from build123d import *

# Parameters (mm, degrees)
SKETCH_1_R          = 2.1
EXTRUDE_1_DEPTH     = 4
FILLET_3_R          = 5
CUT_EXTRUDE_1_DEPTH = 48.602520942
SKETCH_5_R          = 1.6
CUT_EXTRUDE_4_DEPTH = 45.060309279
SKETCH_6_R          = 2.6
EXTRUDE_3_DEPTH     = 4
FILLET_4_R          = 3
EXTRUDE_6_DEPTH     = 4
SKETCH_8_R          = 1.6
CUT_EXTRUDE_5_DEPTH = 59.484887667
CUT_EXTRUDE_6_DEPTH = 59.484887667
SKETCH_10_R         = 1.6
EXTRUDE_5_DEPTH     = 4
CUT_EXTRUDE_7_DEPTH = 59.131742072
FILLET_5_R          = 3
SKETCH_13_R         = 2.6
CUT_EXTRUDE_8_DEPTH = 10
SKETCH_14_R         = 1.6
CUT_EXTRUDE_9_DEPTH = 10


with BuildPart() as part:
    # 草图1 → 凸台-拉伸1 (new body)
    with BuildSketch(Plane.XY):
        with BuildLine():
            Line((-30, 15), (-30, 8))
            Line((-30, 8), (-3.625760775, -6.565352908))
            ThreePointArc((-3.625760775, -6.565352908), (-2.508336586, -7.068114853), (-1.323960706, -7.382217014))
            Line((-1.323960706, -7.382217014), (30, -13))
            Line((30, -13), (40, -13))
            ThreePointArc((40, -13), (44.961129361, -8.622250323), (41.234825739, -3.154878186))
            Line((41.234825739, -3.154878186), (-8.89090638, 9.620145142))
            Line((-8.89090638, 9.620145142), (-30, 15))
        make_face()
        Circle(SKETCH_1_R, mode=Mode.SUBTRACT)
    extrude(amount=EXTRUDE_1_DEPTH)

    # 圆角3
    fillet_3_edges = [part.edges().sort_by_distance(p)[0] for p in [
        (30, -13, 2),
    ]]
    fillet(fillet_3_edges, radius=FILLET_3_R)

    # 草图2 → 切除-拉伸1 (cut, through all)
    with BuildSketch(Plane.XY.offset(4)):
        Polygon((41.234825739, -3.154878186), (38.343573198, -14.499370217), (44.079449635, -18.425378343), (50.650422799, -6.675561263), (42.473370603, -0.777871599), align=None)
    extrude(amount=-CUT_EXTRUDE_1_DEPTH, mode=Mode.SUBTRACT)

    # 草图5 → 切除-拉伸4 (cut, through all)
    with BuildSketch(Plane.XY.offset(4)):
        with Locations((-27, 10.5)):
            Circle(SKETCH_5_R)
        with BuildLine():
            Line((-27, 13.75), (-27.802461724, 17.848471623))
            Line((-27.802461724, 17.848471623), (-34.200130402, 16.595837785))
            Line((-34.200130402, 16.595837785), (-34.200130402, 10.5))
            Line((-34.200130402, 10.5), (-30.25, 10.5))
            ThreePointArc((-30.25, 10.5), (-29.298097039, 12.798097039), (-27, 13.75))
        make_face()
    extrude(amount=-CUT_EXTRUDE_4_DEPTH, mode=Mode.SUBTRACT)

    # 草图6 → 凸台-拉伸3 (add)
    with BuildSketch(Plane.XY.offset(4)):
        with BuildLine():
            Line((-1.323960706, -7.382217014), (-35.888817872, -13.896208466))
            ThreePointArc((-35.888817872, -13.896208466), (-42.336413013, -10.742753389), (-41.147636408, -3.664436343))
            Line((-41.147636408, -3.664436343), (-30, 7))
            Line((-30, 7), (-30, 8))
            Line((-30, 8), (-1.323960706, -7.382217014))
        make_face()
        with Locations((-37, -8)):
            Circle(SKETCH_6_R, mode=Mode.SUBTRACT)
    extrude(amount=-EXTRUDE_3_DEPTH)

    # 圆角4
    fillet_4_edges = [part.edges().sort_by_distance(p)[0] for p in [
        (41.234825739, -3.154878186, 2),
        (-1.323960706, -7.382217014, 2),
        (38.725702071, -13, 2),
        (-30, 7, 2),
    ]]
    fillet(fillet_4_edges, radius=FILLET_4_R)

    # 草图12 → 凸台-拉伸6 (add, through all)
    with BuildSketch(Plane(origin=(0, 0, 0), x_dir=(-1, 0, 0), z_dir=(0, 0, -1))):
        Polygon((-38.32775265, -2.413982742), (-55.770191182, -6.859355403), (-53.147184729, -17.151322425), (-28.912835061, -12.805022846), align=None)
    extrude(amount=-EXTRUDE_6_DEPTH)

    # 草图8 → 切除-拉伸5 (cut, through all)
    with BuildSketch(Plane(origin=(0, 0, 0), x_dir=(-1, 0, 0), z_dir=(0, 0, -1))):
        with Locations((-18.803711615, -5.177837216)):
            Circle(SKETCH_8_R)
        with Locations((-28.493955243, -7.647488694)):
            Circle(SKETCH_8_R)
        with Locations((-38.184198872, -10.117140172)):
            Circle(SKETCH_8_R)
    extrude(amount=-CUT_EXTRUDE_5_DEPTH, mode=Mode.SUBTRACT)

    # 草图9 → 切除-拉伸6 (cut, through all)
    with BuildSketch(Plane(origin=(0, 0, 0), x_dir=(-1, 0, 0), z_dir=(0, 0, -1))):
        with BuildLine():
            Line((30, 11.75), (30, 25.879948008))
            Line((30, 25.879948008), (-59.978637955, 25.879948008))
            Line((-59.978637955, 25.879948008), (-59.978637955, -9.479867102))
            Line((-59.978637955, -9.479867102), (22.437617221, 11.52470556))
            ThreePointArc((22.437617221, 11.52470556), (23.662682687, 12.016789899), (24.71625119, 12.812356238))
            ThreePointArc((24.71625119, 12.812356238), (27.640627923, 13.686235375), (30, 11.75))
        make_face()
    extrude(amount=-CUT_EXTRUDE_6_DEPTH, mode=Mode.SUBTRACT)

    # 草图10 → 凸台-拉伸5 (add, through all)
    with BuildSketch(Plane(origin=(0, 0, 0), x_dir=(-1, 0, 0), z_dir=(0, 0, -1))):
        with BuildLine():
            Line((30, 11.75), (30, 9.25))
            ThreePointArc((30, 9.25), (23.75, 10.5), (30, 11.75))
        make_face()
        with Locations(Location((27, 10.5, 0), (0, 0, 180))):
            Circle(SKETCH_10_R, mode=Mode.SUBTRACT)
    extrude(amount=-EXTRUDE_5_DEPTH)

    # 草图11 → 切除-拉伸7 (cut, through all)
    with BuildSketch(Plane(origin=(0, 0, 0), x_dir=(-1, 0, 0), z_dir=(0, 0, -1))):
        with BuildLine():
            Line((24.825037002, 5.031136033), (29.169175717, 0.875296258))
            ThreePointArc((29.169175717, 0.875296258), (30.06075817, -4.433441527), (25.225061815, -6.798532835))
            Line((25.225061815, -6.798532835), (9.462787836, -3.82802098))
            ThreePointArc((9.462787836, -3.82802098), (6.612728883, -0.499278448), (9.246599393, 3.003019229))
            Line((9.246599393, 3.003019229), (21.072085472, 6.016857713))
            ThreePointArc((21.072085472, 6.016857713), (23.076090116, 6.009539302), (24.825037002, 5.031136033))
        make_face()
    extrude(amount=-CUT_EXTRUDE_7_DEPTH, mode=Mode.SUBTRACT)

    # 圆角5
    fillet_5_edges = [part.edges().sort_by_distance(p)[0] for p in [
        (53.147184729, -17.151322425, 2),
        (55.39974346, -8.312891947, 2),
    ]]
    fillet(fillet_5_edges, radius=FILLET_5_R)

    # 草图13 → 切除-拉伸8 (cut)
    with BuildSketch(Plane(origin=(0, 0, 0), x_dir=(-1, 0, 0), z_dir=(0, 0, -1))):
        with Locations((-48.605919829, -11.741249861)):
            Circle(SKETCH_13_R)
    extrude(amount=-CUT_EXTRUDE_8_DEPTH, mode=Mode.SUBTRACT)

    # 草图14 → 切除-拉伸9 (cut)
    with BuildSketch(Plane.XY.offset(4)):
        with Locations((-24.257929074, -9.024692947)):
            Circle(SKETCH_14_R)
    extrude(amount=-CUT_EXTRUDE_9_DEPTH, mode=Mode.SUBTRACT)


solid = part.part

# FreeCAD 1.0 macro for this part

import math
import FreeCAD as App
import Part
import Sketcher
Q = App.Units.Quantity


def edges_at(feature, points):
    """Names of the edges that pass closest to the given points."""
    edges = feature.Shape.Edges
    near = lambda p: min(range(len(edges)), key=lambda i: edges[i].distToShape(Part.Vertex(*p))[0])
    return sorted({f"Edge{near(p) + 1}" for p in points})

doc = App.newDocument("Part")
params = doc.addObject("Spreadsheet::Sheet", "Params")
for row, (alias, value) in enumerate([
    ("sketch1_radius", "5 mm"),
    ("sketch1_diameter", "4.2 mm"),
    ("sketch1_radius2", "7.5 mm"),
    ("sketch1_width", "10 mm"),
    ("sketch1_height", "7 mm"),
    ("pad1_length", "4 mm"),
    ("fillet_radius", "5 mm"),
    ("sketch3_diameter", "3.2 mm"),
    ("sketch3_radius", "3.25 mm"),
    ("sketch4_radius", "6 mm"),
    ("sketch4_diameter", "5.2 mm"),
    ("sketch4_height", "1 mm"),
    ("pad2_length", "4 mm"),
    ("fillet2_radius", "3 mm"),
    ("sketch5_length", "18 mm"),
    ("pad3_length", "4 mm"),
    ("sketch6_diameter", "3.2 mm"),
    ("sketch7_radius", "5 mm"),
    ("sketch7_radius2", "3.25 mm"),
    ("sketch8_diameter", "3.2 mm"),
    ("sketch8_radius", "3.25 mm"),
    ("sketch8_height", "2.5 mm"),
    ("pad4_length", "4 mm"),
    ("sketch9_radius", "4 mm"),
    ("sketch9_radius2", "3.5 mm"),
    ("sketch9_radius3", "4.5 mm"),
    ("fillet3_radius", "3 mm"),
    ("sketch10_diameter", "5.2 mm"),
    ("pocket6_length", "10 mm"),
    ("sketch11_diameter", "3.2 mm"),
    ("pocket7_length", "10 mm"),
], start=1):
    params.set(f"A{row}", alias)
    params.set(f"B{row}", "=" + value)
    params.setAlias(f"B{row}", alias)

body = doc.addObject("PartDesign::Body", "Body")

sketch1 = doc.addObject("Sketcher::SketchObject", "Sketch")
body.addObject(sketch1)
sketch1.AttachmentSupport = (doc.XY_Plane, [""])
sketch1.MapMode = "FlatFace"
sketch1.addGeometry([
    Part.LineSegment(App.Vector(-30, 15, 0), App.Vector(-30, 8, 0)),
    Part.LineSegment(App.Vector(-30, 8, 0), App.Vector(-3.625761, -6.565353, 0)),
    Part.ArcOfCircle(Part.Circle(App.Vector(0, 0, 0), App.Vector(0, 0, 1), 7.5), math.radians(-118.909974), math.radians(-100.167596)),
    Part.LineSegment(App.Vector(-1.323961, -7.382217, 0), App.Vector(30, -13, 0)),
    Part.LineSegment(App.Vector(30, -13, 0), App.Vector(40, -13, 0)),
    Part.ArcOfCircle(Part.Circle(App.Vector(40, -8, 0), App.Vector(0, 0, 1), 5), math.radians(-90), math.radians(75.702002)),
    Part.LineSegment(App.Vector(41.234826, -3.154878, 0), App.Vector(-8.890906, 9.620145, 0)),
    Part.LineSegment(App.Vector(-8.890906, 9.620145, 0), App.Vector(-30, 15, 0)),
    Part.Circle(App.Vector(0, 0, 0), App.Vector(0, 0, 1), 2.1),
], False)
sketch1.addConstraint([
    Sketcher.Constraint("Coincident", 0, 2, 1, 1),
    Sketcher.Constraint("Tangent", 1, 2, 2, 1),
    Sketcher.Constraint("Tangent", 2, 2, 3, 1),
    Sketcher.Constraint("Coincident", 3, 2, 4, 1),
    Sketcher.Constraint("Tangent", 4, 2, 5, 1),
    Sketcher.Constraint("Tangent", 5, 2, 6, 1),
    Sketcher.Constraint("Coincident", 6, 2, 7, 1),
    Sketcher.Constraint("Coincident", 7, 2, 0, 1),
    Sketcher.Constraint("Vertical", 0),
    Sketcher.Constraint("Horizontal", 4),
    Sketcher.Constraint("Coincident", 2, 3, -1, 1),
    Sketcher.Constraint("Coincident", 8, 3, -1, 1),
    Sketcher.Constraint("Parallel", 6, 7),
    Sketcher.Constraint("Radius", 5, Q("5 mm")),
    Sketcher.Constraint("Diameter", 8, Q("4.2 mm")),
    Sketcher.Constraint("Radius", 2, Q("7.5 mm")),
    Sketcher.Constraint("DistanceX", 4, 1, 4, 2, Q("10 mm")),
    Sketcher.Constraint("DistanceY", 0, 2, 0, 1, Q("7 mm")),
    Sketcher.Constraint("DistanceX", -1, 1, 5, 3, Q("40 mm")),
    Sketcher.Constraint("DistanceY", 5, 3, -1, 1, Q("8 mm")),
    Sketcher.Constraint("DistanceX", 0, 2, -1, 1, Q("30 mm")),
    Sketcher.Constraint("DistanceY", -1, 1, 0, 2, Q("8 mm")),
    Sketcher.Constraint("DistanceY", 1, 2, 6, 2, Q("16.185498 mm")),
])
sketch1.setExpression("Constraints[13]", "Params.sketch1_radius")
sketch1.setExpression("Constraints[14]", "Params.sketch1_diameter")
sketch1.setExpression("Constraints[15]", "Params.sketch1_radius2")
sketch1.setExpression("Constraints[16]", "Params.sketch1_width")
sketch1.setExpression("Constraints[17]", "Params.sketch1_height")
pad1 = doc.addObject("PartDesign::Pad", "Pad")
body.addObject(pad1)
pad1.Profile = sketch1
pad1.setExpression("Length", "Params.pad1_length")
doc.recompute()

fillet = doc.addObject("PartDesign::Fillet", "Fillet")
body.addObject(fillet)
fillet.Base = (pad1, edges_at(pad1, [(30, -13, 2)]))
fillet.setExpression("Radius", "Params.fillet_radius")

sketch2 = doc.addObject("Sketcher::SketchObject", "Sketch001")
body.addObject(sketch2)
sketch2.AttachmentSupport = (doc.XY_Plane, [""])
sketch2.MapMode = "FlatFace"
sketch2.AttachmentOffset = App.Placement(App.Vector(0, 0, 4), App.Rotation())
sketch2.addGeometry([
    Part.LineSegment(App.Vector(41.234826, -3.154878, 0), App.Vector(38.343573, -14.49937, 0)),
    Part.LineSegment(App.Vector(38.343573, -14.49937, 0), App.Vector(44.07945, -18.425378, 0)),
    Part.LineSegment(App.Vector(44.07945, -18.425378, 0), App.Vector(50.650423, -6.675561, 0)),
    Part.LineSegment(App.Vector(50.650423, -6.675561, 0), App.Vector(42.473371, -0.777872, 0)),
    Part.LineSegment(App.Vector(42.473371, -0.777872, 0), App.Vector(41.234826, -3.154878, 0)),
], False)
sketch2.addConstraint([
    Sketcher.Constraint("Coincident", 0, 2, 1, 1),
    Sketcher.Constraint("Coincident", 1, 2, 2, 1),
    Sketcher.Constraint("Coincident", 2, 2, 3, 1),
    Sketcher.Constraint("Coincident", 3, 2, 4, 1),
    Sketcher.Constraint("Coincident", 4, 2, 0, 1),
    Sketcher.Constraint("DistanceY", 0, 2, 3, 2, Q("13.721499 mm")),
    Sketcher.Constraint("DistanceY", 1, 2, 4, 2, Q("15.2705 mm")),
    Sketcher.Constraint("Distance", 3, Q("10.08201 mm")),
    Sketcher.Constraint("DistanceY", 0, 2, -1, 1, Q("14.49937 mm")),
    Sketcher.Constraint("DistanceX", -1, 1, 1, 2, Q("44.07945 mm")),
    Sketcher.Constraint("DistanceY", 1, 2, -1, 1, Q("18.425378 mm")),
    Sketcher.Constraint("DistanceY", 2, 2, -1, 1, Q("6.675561 mm")),
    Sketcher.Constraint("DistanceX", -1, 1, 3, 2, Q("42.473371 mm")),
    Sketcher.Constraint("DistanceX", 0, 2, 2, 2, Q("12.30685 mm")),
    Sketcher.Constraint("Distance", 0, Q("11.707128 mm")),
])
pocket1 = doc.addObject("PartDesign::Pocket", "Pocket")
body.addObject(pocket1)
pocket1.Profile = sketch2
pocket1.Type = "ThroughAll"

sketch3 = doc.addObject("Sketcher::SketchObject", "Sketch002")
body.addObject(sketch3)
sketch3.AttachmentSupport = (doc.XY_Plane, [""])
sketch3.MapMode = "FlatFace"
sketch3.AttachmentOffset = App.Placement(App.Vector(0, 0, 4), App.Rotation())
sketch3.addGeometry([
    Part.Circle(App.Vector(-27, 10.5, 0), App.Vector(0, 0, 1), 1.6),
    Part.LineSegment(App.Vector(-27, 13.75, 0), App.Vector(-27.802462, 17.848472, 0)),
    Part.LineSegment(App.Vector(-27.802462, 17.848472, 0), App.Vector(-34.20013, 16.595838, 0)),
    Part.LineSegment(App.Vector(-34.20013, 16.595838, 0), App.Vector(-34.20013, 10.5, 0)),
    Part.LineSegment(App.Vector(-34.20013, 10.5, 0), App.Vector(-30.25, 10.5, 0)),
    Part.ArcOfCircle(Part.Circle(App.Vector(-27, 10.5, 0), App.Vector(0, 0, 1), 3.25), math.radians(90), math.radians(180)),
], False)
sketch3.addConstraint([
    Sketcher.Constraint("Coincident", 1, 2, 2, 1),
    Sketcher.Constraint("Coincident", 2, 2, 3, 1),
    Sketcher.Constraint("Coincident", 3, 2, 4, 1),
    Sketcher.Constraint("Coincident", 4, 2, 5, 2),
    Sketcher.Constraint("Coincident", 5, 1, 1, 1),
    Sketcher.Constraint("Vertical", 3),
    Sketcher.Constraint("Horizontal", 4),
    Sketcher.Constraint("Coincident", 5, 3, 0, 3),
    Sketcher.Constraint("Perpendicular", 1, 2),
    Sketcher.Constraint("Horizontal", 5, 3, 3, 2),
    Sketcher.Constraint("Vertical", 0, 3, 5, 1),
    Sketcher.Constraint("Diameter", 0, Q("3.2 mm")),
    Sketcher.Constraint("Radius", 5, Q("3.25 mm")),
    Sketcher.Constraint("DistanceX", 0, 3, -1, 1, Q("27 mm")),
    Sketcher.Constraint("DistanceY", -1, 1, 0, 3, Q("10.5 mm")),
    Sketcher.Constraint("DistanceX", 4, 1, 4, 2, Q("3.95013 mm")),
    Sketcher.Constraint("Distance", 1, Q("4.176292 mm")),
    Sketcher.Constraint("DistanceY", 3, 2, 3, 1, Q("6.095838 mm")),
])
sketch3.setExpression("Constraints[11]", "Params.sketch3_diameter")
sketch3.setExpression("Constraints[12]", "Params.sketch3_radius")
pocket2 = doc.addObject("PartDesign::Pocket", "Pocket001")
body.addObject(pocket2)
pocket2.Profile = sketch3
pocket2.Type = "ThroughAll"

sketch4 = doc.addObject("Sketcher::SketchObject", "Sketch003")
body.addObject(sketch4)
sketch4.AttachmentSupport = (doc.XY_Plane, [""])
sketch4.MapMode = "FlatFace"
sketch4.AttachmentOffset = App.Placement(App.Vector(0, 0, 4), App.Rotation())
sketch4.addGeometry([
    Part.LineSegment(App.Vector(-35.888818, -13.896208, 0), App.Vector(-1.323961, -7.382217, 0)),
    Part.LineSegment(App.Vector(-1.323961, -7.382217, 0), App.Vector(-30, 8, 0)),
    Part.LineSegment(App.Vector(-30, 8, 0), App.Vector(-30, 7, 0)),
    Part.LineSegment(App.Vector(-30, 7, 0), App.Vector(-41.147636, -3.664436, 0)),
    Part.ArcOfCircle(Part.Circle(App.Vector(-37, -8, 0), App.Vector(0, 0, 1), 6), math.radians(133.730941), math.radians(280.672619)),
    Part.Circle(App.Vector(-37, -8, 0), App.Vector(0, 0, 1), 2.6),
], False)
sketch4.addConstraint([
    Sketcher.Constraint("Coincident", 0, 2, 1, 1),
    Sketcher.Constraint("Coincident", 1, 2, 2, 1),
    Sketcher.Constraint("Coincident", 2, 2, 3, 1),
    Sketcher.Constraint("Tangent", 3, 2, 4, 1),
    Sketcher.Constraint("Tangent", 4, 2, 0, 1),
    Sketcher.Constraint("Vertical", 2),
    Sketcher.Constraint("Coincident", 5, 3, 4, 3),
    Sketcher.Constraint("Radius", 4, Q("6 mm")),
    Sketcher.Constraint("Diameter", 5, Q("5.2 mm")),
    Sketcher.Constraint("DistanceY", 2, 2, 2, 1, Q("1 mm")),
    Sketcher.Constraint("DistanceX", 4, 3, -1, 1, Q("37 mm")),
    Sketcher.Constraint("DistanceY", 4, 3, -1, 1, Q("8 mm")),
    Sketcher.Constraint("DistanceX", 1, 2, -1, 1, Q("30 mm")),
    Sketcher.Constraint("DistanceY", -1, 1, 1, 2, Q("8 mm")),
    Sketcher.Constraint("Distance", 1, Q("32.541171 mm")),
    Sketcher.Constraint("DistanceX", 0, 2, -1, 1, Q("1.323961 mm")),
])
sketch4.setExpression("Constraints[7]", "Params.sketch4_radius")
sketch4.setExpression("Constraints[8]", "Params.sketch4_diameter")
sketch4.setExpression("Constraints[9]", "Params.sketch4_height")
pad2 = doc.addObject("PartDesign::Pad", "Pad001")
body.addObject(pad2)
pad2.Profile = sketch4
pad2.setExpression("Length", "Params.pad2_length")
pad2.Reversed = True
doc.recompute()

fillet2 = doc.addObject("PartDesign::Fillet", "Fillet001")
body.addObject(fillet2)
fillet2.Base = (pad2, edges_at(pad2, [
    (41.235, -3.155, 2),
    (-1.324, -7.382, 2),
    (38.726, -13, 2),
    (-30, 7, 2),
]))
fillet2.setExpression("Radius", "Params.fillet2_radius")

sketch5 = doc.addObject("Sketcher::SketchObject", "Sketch004")
body.addObject(sketch5)
sketch5.AttachmentSupport = (doc.XY_Plane, [""])
sketch5.MapMode = "FlatFace"
sketch5.addGeometry([
    Part.LineSegment(App.Vector(38.327753, -2.413983, 0), App.Vector(55.770191, -6.859355, 0)),
    Part.LineSegment(App.Vector(55.770191, -6.859355, 0), App.Vector(53.147185, -17.151322, 0)),
    Part.LineSegment(App.Vector(53.147185, -17.151322, 0), App.Vector(28.912835, -12.805023, 0)),
    Part.LineSegment(App.Vector(28.912835, -12.805023, 0), App.Vector(38.327753, -2.413983, 0)),
], False)
sketch5.addConstraint([
    Sketcher.Constraint("Coincident", 0, 2, 1, 1),
    Sketcher.Constraint("Coincident", 1, 2, 2, 1),
    Sketcher.Constraint("Coincident", 2, 2, 3, 1),
    Sketcher.Constraint("Coincident", 3, 2, 0, 1),
    Sketcher.Constraint("Perpendicular", 0, 1),
    Sketcher.Constraint("Distance", 0, Q("18 mm")),
    Sketcher.Constraint("DistanceY", 1, 2, 2, 2, Q("4.3463 mm")),
    Sketcher.Constraint("DistanceX", -1, 1, 0, 2, Q("55.770191 mm")),
    Sketcher.Constraint("DistanceX", 2, 2, 1, 2, Q("24.23435 mm")),
    Sketcher.Constraint("DistanceY", 2, 2, 3, 2, Q("10.39104 mm")),
    Sketcher.Constraint("DistanceX", 3, 2, 0, 2, Q("17.442439 mm")),
    Sketcher.Constraint("DistanceY", 0, 2, -1, 1, Q("6.859355 mm")),
])
sketch5.setExpression("Constraints[5]", "Params.sketch5_length")
pad3 = doc.addObject("PartDesign::Pad", "Pad002")
body.addObject(pad3)
pad3.Profile = sketch5
pad3.setExpression("Length", "Params.pad3_length")

sketch6 = doc.addObject("Sketcher::SketchObject", "Sketch005")
body.addObject(sketch6)
sketch6.AttachmentSupport = (doc.XY_Plane, [""])
sketch6.MapMode = "FlatFace"
sketch6.addGeometry([
    Part.Circle(App.Vector(18.803712, -5.177837, 0), App.Vector(0, 0, 1), 1.6),
    Part.Circle(App.Vector(28.493955, -7.647489, 0), App.Vector(0, 0, 1), 1.6),
    Part.Circle(App.Vector(38.184199, -10.11714, 0), App.Vector(0, 0, 1), 1.6),
], False)
sketch6.addConstraint([
    Sketcher.Constraint("Equal", 0, 1),
    Sketcher.Constraint("Equal", 1, 2),
    Sketcher.Constraint("Diameter", 0, Q("3.2 mm")),
    Sketcher.Constraint("DistanceX", -1, 1, 2, 3, Q("38.184199 mm")),
    Sketcher.Constraint("DistanceX", -1, 1, 0, 3, Q("18.803712 mm")),
    Sketcher.Constraint("DistanceY", 1, 3, -1, 1, Q("7.647489 mm")),
    Sketcher.Constraint("DistanceY", 2, 3, -1, 1, Q("10.11714 mm")),
    Sketcher.Constraint("DistanceY", 1, 3, 0, 3, Q("2.469651 mm")),
    Sketcher.Constraint("DistanceX", -1, 1, 1, 3, Q("28.493955 mm")),
])
sketch6.setExpression("Constraints[2]", "Params.sketch6_diameter")
pocket3 = doc.addObject("PartDesign::Pocket", "Pocket002")
body.addObject(pocket3)
pocket3.Profile = sketch6
pocket3.Type = "ThroughAll"
pocket3.Reversed = True

sketch7 = doc.addObject("Sketcher::SketchObject", "Sketch006")
body.addObject(sketch7)
sketch7.AttachmentSupport = (doc.XY_Plane, [""])
sketch7.MapMode = "FlatFace"
sketch7.addGeometry([
    Part.LineSegment(App.Vector(-30, 11.75, 0), App.Vector(-30, 25.879948, 0)),
    Part.LineSegment(App.Vector(-30, 25.879948, 0), App.Vector(59.978638, 25.879948, 0)),
    Part.LineSegment(App.Vector(59.978638, 25.879948, 0), App.Vector(59.978638, -9.479867, 0)),
    Part.LineSegment(App.Vector(59.978638, -9.479867, 0), App.Vector(-22.437617, 11.524706, 0)),
    Part.ArcOfCircle(Part.Circle(App.Vector(-21.202791, 16.369827, 0), App.Vector(0, 0, 1), 5), math.radians(-134.64338), math.radians(-104.297998)),
    Part.ArcOfCircle(Part.Circle(App.Vector(-27, 10.5, 0), App.Vector(0, 0, 1), 3.25), math.radians(45.35662), math.radians(157.380135)),
], False)
sketch7.addConstraint([
    Sketcher.Constraint("Coincident", 0, 2, 1, 1),
    Sketcher.Constraint("Coincident", 1, 2, 2, 1),
    Sketcher.Constraint("Coincident", 2, 2, 3, 1),
    Sketcher.Constraint("Tangent", 3, 2, 4, 2),
    Sketcher.Constraint("Tangent", 4, 1, 5, 1),
    Sketcher.Constraint("Coincident", 5, 2, 0, 1),
    Sketcher.Constraint("Vertical", 0),
    Sketcher.Constraint("Horizontal", 1),
    Sketcher.Constraint("Vertical", 2),
    Sketcher.Constraint("Radius", 4, Q("5 mm")),
    Sketcher.Constraint("Radius", 5, Q("3.25 mm")),
    Sketcher.Constraint("DistanceX", 5, 3, -1, 1, Q("27 mm")),
    Sketcher.Constraint("DistanceX", 0, 2, -1, 1, Q("30 mm")),
    Sketcher.Constraint("DistanceY", -1, 1, 5, 3, Q("10.5 mm")),
    Sketcher.Constraint("DistanceY", 0, 1, 0, 2, Q("14.129948 mm")),
    Sketcher.Constraint("DistanceX", 1, 1, 1, 2, Q("89.978638 mm")),
    Sketcher.Constraint("DistanceY", 2, 2, 2, 1, Q("35.359815 mm")),
    Sketcher.Constraint("DistanceX", 4, 3, -1, 1, Q("21.202791 mm")),
])
sketch7.setExpression("Constraints[9]", "Params.sketch7_radius")
sketch7.setExpression("Constraints[10]", "Params.sketch7_radius2")
pocket4 = doc.addObject("PartDesign::Pocket", "Pocket003")
body.addObject(pocket4)
pocket4.Profile = sketch7
pocket4.Type = "ThroughAll"
pocket4.Reversed = True

sketch8 = doc.addObject("Sketcher::SketchObject", "Sketch007")
body.addObject(sketch8)
sketch8.AttachmentSupport = (doc.XY_Plane, [""])
sketch8.MapMode = "FlatFace"
sketch8.addGeometry([
    Part.LineSegment(App.Vector(-30, 9.25, 0), App.Vector(-30, 11.75, 0)),
    Part.ArcOfCircle(Part.Circle(App.Vector(-27, 10.5, 0), App.Vector(0, 0, 1), 3.25), math.radians(-157.380135), math.radians(157.380135)),
    Part.Circle(App.Vector(-27, 10.5, 0), App.Vector(0, 0, 1), 1.6),
], False)
sketch8.addConstraint([
    Sketcher.Constraint("Coincident", 0, 1, 1, 1),
    Sketcher.Constraint("Coincident", 1, 2, 0, 2),
    Sketcher.Constraint("Vertical", 0),
    Sketcher.Constraint("Coincident", 2, 3, 1, 3),
    Sketcher.Constraint("Diameter", 2, Q("3.2 mm")),
    Sketcher.Constraint("Radius", 1, Q("3.25 mm")),
    Sketcher.Constraint("DistanceY", 0, 1, 0, 2, Q("2.5 mm")),
    Sketcher.Constraint("DistanceX", 1, 3, -1, 1, Q("27 mm")),
    Sketcher.Constraint("DistanceY", -1, 1, 1, 3, Q("10.5 mm")),
])
sketch8.setExpression("Constraints[4]", "Params.sketch8_diameter")
sketch8.setExpression("Constraints[5]", "Params.sketch8_radius")
sketch8.setExpression("Constraints[6]", "Params.sketch8_height")
pad4 = doc.addObject("PartDesign::Pad", "Pad003")
body.addObject(pad4)
pad4.Profile = sketch8
pad4.setExpression("Length", "Params.pad4_length")

sketch9 = doc.addObject("Sketcher::SketchObject", "Sketch008")
body.addObject(sketch9)
sketch9.AttachmentSupport = (doc.XY_Plane, [""])
sketch9.MapMode = "FlatFace"
sketch9.addGeometry([
    Part.LineSegment(App.Vector(-29.169176, 0.875296, 0), App.Vector(-24.825037, 5.031136, 0)),
    Part.ArcOfCircle(Part.Circle(App.Vector(-22.059946, 2.14076, 0), App.Vector(0, 0, 1), 4), math.radians(75.702002), math.radians(133.730941)),
    Part.LineSegment(App.Vector(-21.072085, 6.016858, 0), App.Vector(-9.246599, 3.003019, 0)),
    Part.ArcOfCircle(Part.Circle(App.Vector(-10.110977, -0.388566, 0), App.Vector(0, 0, 1), 3.5), math.radians(-79.327381), math.radians(75.702002)),
    Part.LineSegment(App.Vector(-9.462788, -3.828021, 0), App.Vector(-25.225062, -6.798533, 0)),
    Part.ArcOfCircle(Part.Circle(App.Vector(-26.058448, -2.376376, 0), App.Vector(0, 0, 1), 4.5), math.radians(133.730941), math.radians(280.672619)),
], False)
sketch9.addConstraint([
    Sketcher.Constraint("Tangent", 0, 2, 1, 2),
    Sketcher.Constraint("Tangent", 1, 1, 2, 1),
    Sketcher.Constraint("Tangent", 2, 2, 3, 2),
    Sketcher.Constraint("Tangent", 3, 1, 4, 1),
    Sketcher.Constraint("Tangent", 4, 2, 5, 2),
    Sketcher.Constraint("Tangent", 5, 1, 0, 1),
    Sketcher.Constraint("Radius", 1, Q("4 mm")),
    Sketcher.Constraint("Radius", 3, Q("3.5 mm")),
    Sketcher.Constraint("Radius", 5, Q("4.5 mm")),
    Sketcher.Constraint("DistanceX", 2, 2, -1, 1, Q("9.246599 mm")),
    Sketcher.Constraint("Distance", 4, Q("16.039739 mm")),
    Sketcher.Constraint("DistanceY", -1, 1, 1, 3, Q("2.14076 mm")),
    Sketcher.Constraint("DistanceX", 5, 3, -1, 1, Q("26.058448 mm")),
    Sketcher.Constraint("DistanceY", -1, 1, 2, 2, Q("3.003019 mm")),
    Sketcher.Constraint("DistanceY", 3, 1, -1, 1, Q("3.828021 mm")),
])
sketch9.setExpression("Constraints[6]", "Params.sketch9_radius")
sketch9.setExpression("Constraints[7]", "Params.sketch9_radius2")
sketch9.setExpression("Constraints[8]", "Params.sketch9_radius3")
pocket5 = doc.addObject("PartDesign::Pocket", "Pocket004")
body.addObject(pocket5)
pocket5.Profile = sketch9
pocket5.Type = "ThroughAll"
pocket5.Reversed = True
doc.recompute()

fillet3 = doc.addObject("PartDesign::Fillet", "Fillet002")
body.addObject(fillet3)
fillet3.Base = (pocket5, edges_at(pocket5, [(53.147, -17.151, 2), (55.4, -8.313, 2)]))
fillet3.setExpression("Radius", "Params.fillet3_radius")

sketch10 = doc.addObject("Sketcher::SketchObject", "Sketch009")
body.addObject(sketch10)
sketch10.AttachmentSupport = (doc.XY_Plane, [""])
sketch10.MapMode = "FlatFace"
sketch10.addGeometry(Part.Circle(App.Vector(48.60592, -11.74125, 0), App.Vector(0, 0, 1), 2.6), False)
sketch10.addConstraint([
    Sketcher.Constraint("Diameter", 0, Q("5.2 mm")),
    Sketcher.Constraint("DistanceX", -1, 1, 0, 3, Q("48.60592 mm")),
    Sketcher.Constraint("DistanceY", 0, 3, -1, 1, Q("11.74125 mm")),
])
sketch10.setExpression("Constraints[0]", "Params.sketch10_diameter")
pocket6 = doc.addObject("PartDesign::Pocket", "Pocket005")
body.addObject(pocket6)
pocket6.Profile = sketch10
pocket6.setExpression("Length", "Params.pocket6_length")
pocket6.Reversed = True

sketch11 = doc.addObject("Sketcher::SketchObject", "Sketch010")
body.addObject(sketch11)
sketch11.AttachmentSupport = (doc.XY_Plane, [""])
sketch11.MapMode = "FlatFace"
sketch11.AttachmentOffset = App.Placement(App.Vector(0, 0, 4), App.Rotation())
sketch11.addGeometry(Part.Circle(App.Vector(-24.257929, -9.024693, 0), App.Vector(0, 0, 1), 1.6), False)
sketch11.addConstraint([
    Sketcher.Constraint("Diameter", 0, Q("3.2 mm")),
    Sketcher.Constraint("DistanceX", 0, 3, -1, 1, Q("24.257929 mm")),
    Sketcher.Constraint("DistanceY", 0, 3, -1, 1, Q("9.024693 mm")),
])
sketch11.setExpression("Constraints[0]", "Params.sketch11_diameter")
pocket7 = doc.addObject("PartDesign::Pocket", "Pocket006")
body.addObject(pocket7)
pocket7.Profile = sketch11
pocket7.setExpression("Length", "Params.pocket7_length")

doc.recompute()
